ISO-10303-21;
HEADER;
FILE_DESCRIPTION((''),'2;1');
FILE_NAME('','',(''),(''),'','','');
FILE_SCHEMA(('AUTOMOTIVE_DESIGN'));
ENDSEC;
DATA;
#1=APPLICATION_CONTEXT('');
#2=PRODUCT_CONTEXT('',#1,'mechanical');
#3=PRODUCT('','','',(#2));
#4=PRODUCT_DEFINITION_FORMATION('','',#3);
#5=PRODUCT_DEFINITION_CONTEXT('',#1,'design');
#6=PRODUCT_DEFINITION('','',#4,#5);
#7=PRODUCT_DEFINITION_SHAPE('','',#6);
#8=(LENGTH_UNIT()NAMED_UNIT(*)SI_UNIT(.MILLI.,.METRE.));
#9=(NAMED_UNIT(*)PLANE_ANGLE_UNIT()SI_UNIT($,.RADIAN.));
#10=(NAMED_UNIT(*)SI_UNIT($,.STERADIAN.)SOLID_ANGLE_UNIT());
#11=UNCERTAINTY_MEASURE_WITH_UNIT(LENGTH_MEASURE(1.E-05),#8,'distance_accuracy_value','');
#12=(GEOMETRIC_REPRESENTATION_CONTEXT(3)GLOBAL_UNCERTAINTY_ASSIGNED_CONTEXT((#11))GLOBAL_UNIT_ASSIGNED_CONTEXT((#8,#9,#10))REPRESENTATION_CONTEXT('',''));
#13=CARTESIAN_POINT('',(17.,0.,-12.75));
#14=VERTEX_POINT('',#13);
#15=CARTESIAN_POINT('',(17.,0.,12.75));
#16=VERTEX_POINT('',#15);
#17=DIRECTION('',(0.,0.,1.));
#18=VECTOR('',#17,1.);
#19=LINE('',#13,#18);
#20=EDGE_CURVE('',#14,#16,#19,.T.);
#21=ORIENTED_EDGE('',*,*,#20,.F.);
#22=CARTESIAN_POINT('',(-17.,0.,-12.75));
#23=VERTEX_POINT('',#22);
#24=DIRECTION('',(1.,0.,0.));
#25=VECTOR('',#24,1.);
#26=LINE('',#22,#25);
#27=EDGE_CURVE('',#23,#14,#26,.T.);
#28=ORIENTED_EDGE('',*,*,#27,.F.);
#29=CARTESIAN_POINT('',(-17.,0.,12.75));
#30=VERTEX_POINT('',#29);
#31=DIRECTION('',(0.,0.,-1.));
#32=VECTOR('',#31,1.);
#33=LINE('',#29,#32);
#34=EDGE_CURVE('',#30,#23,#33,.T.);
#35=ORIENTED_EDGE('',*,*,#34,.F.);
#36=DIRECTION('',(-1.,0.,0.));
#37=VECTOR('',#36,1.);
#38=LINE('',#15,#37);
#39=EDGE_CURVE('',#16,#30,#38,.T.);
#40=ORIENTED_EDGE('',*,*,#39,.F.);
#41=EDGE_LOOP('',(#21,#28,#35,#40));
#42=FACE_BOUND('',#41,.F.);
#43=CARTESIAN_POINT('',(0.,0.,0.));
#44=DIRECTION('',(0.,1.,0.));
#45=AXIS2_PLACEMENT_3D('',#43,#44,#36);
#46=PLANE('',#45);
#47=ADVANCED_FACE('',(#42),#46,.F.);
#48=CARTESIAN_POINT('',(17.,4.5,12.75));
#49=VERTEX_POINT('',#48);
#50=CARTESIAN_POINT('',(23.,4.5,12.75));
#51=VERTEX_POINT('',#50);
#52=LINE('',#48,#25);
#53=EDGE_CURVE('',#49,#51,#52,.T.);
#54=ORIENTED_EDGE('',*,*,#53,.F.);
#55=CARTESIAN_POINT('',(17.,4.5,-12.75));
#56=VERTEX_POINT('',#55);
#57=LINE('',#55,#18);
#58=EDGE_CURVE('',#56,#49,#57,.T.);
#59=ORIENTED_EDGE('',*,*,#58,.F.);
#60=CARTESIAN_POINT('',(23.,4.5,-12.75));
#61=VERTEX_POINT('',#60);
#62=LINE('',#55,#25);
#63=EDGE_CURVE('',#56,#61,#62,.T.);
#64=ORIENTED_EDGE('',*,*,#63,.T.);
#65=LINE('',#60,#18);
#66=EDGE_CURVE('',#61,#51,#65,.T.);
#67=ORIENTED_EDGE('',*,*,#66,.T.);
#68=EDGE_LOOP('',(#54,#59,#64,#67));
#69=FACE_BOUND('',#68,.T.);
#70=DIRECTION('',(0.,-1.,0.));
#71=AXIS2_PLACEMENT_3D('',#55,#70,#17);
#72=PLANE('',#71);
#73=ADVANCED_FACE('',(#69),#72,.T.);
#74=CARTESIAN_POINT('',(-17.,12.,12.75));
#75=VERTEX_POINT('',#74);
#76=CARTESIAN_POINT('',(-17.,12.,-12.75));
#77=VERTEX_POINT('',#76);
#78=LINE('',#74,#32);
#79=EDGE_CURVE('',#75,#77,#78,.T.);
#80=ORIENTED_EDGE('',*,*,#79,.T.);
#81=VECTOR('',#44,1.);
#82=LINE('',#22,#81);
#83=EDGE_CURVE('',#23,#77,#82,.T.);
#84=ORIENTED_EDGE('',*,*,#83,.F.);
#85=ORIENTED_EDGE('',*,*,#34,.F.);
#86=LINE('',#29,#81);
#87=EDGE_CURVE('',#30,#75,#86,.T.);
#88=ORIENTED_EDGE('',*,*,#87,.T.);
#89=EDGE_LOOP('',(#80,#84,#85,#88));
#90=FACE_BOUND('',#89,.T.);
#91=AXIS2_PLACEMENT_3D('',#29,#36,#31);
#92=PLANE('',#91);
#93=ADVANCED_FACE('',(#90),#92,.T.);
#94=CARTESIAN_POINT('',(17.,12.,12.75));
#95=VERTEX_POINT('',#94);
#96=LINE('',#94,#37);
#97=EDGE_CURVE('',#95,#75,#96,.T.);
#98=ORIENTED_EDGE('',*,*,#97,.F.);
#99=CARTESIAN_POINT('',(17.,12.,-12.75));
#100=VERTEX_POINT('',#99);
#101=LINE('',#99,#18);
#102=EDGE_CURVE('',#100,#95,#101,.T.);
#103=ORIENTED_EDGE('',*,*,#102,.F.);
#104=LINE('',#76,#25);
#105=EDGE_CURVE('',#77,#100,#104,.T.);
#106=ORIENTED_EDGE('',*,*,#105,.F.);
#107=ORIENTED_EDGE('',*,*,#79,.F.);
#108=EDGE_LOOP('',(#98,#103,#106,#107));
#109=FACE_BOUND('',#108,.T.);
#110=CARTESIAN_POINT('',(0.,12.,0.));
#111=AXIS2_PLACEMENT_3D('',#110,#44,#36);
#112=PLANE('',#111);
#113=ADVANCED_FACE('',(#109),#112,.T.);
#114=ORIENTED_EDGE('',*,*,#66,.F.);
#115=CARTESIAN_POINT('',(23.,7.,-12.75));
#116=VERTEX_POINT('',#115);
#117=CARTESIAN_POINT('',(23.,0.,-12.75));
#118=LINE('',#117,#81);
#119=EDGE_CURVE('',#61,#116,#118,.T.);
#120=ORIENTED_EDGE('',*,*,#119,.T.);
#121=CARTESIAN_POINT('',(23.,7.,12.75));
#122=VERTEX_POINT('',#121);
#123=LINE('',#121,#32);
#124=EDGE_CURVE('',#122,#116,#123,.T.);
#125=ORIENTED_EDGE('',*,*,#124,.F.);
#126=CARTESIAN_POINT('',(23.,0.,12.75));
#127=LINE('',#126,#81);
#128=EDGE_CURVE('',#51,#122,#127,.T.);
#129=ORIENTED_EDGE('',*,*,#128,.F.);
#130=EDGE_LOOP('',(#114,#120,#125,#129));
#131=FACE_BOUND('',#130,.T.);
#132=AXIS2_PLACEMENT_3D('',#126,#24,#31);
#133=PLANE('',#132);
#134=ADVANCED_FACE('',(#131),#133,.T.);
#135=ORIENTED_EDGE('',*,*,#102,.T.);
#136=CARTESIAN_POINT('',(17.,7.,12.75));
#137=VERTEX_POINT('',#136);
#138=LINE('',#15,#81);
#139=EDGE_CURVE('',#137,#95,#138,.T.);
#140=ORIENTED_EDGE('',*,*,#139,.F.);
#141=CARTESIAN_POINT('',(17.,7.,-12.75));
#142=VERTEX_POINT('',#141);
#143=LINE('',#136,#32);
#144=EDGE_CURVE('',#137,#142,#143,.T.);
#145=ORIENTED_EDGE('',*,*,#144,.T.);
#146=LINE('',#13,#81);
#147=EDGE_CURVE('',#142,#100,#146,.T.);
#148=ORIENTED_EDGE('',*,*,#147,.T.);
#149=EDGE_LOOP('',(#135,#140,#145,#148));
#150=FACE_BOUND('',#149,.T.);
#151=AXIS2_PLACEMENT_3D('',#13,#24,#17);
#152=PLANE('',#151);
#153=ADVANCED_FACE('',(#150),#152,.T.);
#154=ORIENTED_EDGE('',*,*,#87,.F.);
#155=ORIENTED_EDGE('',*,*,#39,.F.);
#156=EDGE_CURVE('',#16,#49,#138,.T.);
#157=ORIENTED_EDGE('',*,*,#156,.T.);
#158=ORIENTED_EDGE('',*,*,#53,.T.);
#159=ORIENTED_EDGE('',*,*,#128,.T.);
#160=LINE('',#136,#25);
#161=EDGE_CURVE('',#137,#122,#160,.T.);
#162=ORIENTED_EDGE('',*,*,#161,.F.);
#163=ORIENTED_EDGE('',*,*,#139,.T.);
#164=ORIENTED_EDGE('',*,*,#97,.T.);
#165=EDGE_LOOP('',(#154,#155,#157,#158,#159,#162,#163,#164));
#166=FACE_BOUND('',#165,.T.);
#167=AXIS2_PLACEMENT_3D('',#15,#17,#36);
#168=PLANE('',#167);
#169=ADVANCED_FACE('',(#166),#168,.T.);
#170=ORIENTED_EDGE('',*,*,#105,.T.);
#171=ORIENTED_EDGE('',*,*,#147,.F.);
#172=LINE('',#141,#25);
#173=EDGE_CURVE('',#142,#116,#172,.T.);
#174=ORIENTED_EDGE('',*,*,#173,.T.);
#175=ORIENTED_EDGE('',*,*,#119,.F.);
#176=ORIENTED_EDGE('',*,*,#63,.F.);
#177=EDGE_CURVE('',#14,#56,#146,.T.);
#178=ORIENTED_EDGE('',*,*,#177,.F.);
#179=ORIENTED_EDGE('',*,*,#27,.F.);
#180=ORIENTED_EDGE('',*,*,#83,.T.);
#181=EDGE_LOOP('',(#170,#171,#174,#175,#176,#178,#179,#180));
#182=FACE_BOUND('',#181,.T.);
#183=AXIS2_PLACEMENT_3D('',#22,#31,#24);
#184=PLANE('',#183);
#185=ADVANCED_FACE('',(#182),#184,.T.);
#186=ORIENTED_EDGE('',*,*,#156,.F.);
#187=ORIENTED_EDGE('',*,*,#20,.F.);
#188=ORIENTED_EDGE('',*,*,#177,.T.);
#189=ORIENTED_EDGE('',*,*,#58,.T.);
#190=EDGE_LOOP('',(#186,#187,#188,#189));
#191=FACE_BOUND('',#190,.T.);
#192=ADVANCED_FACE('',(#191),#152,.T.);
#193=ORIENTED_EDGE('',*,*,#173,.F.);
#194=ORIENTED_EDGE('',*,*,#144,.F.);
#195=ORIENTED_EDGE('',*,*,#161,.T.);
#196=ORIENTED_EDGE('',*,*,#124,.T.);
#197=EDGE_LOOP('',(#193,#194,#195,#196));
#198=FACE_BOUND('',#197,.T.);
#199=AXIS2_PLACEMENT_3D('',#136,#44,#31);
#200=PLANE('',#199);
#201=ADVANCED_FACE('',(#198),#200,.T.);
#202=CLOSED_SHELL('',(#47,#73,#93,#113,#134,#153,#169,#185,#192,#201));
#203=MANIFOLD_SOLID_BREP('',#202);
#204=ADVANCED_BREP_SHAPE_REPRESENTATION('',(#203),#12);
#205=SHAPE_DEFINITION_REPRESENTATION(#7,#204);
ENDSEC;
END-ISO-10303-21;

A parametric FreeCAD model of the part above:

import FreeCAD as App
import Part
import Sketcher


def add_polygon(sketch, points):
    """Adds a closed chain of lines whose ends are joined by coincident constraints."""
    first, n = sketch.GeometryCount, len(points)
    for a, b in zip(points, points[1:] + points[:1]):
        sketch.addGeometry(Part.LineSegment(App.Vector(*a, 0), App.Vector(*b, 0)), False)
    for i in range(n):
        sketch.addConstraint(Sketcher.Constraint("Coincident", first + i, 2, first + (i + 1) % n, 1))

doc = App.newDocument("Part")
body = doc.addObject("PartDesign::Body", "Body")

# Sketch on XZ plane
sketch1 = body.newObject("Sketcher::SketchObject", "Sketch")
sketch1.AttachmentSupport = (doc.getObject("XZ_Plane"), [""])
sketch1.MapMode = "FlatFace"
add_polygon(sketch1, [(-17, 12.75), (17, 12.75), (17, -12.75), (-17, -12.75)])  # lines 0-3
sketch1.addConstraint([
    Sketcher.Constraint("Horizontal", 0),
    Sketcher.Constraint("Vertical", 1),
    Sketcher.Constraint("Horizontal", 2),
    Sketcher.Constraint("Vertical", 3),
    Sketcher.Constraint("Symmetric", 0, 2, 2, 2, -1, 1),
    Sketcher.Constraint("DistanceX", 0, 1, 0, 2, 34.0),
    Sketcher.Constraint("DistanceY", 1, 2, 1, 1, 25.5),
])
pad1 = body.newObject("PartDesign::Pad", "Pad")
pad1.Profile = sketch1
pad1.Length = 12
pad1.Reversed = True

# Sketch on YZ plane
sketch2 = body.newObject("Sketcher::SketchObject", "Sketch001")
sketch2.AttachmentSupport = (doc.getObject("YZ_Plane"), [""])
sketch2.MapMode = "FlatFace"
sketch2.AttachmentOffset = App.Placement(App.Vector(0, 0, 17), App.Rotation())
add_polygon(sketch2, [(7, 12.75), (4.5, 12.75), (4.5, -12.75), (7, -12.75)])  # lines 0-3
sketch2.addConstraint([
    Sketcher.Constraint("Horizontal", 0),
    Sketcher.Constraint("Vertical", 1),
    Sketcher.Constraint("Horizontal", 2),
    Sketcher.Constraint("Vertical", 3),
    Sketcher.Constraint("DistanceX", 0, 2, 0, 1, 2.5),
    Sketcher.Constraint("DistanceY", 1, 2, 1, 1, 25.5),
    Sketcher.Constraint("DistanceX", -1, 1, 2, 2, 7.0),
    Sketcher.Constraint("DistanceY", -1, 1, 0, 2, 12.75),
])
pad2 = body.newObject("PartDesign::Pad", "Pad001")
pad2.Profile = sketch2
pad2.Length = 6

doc.recompute()
